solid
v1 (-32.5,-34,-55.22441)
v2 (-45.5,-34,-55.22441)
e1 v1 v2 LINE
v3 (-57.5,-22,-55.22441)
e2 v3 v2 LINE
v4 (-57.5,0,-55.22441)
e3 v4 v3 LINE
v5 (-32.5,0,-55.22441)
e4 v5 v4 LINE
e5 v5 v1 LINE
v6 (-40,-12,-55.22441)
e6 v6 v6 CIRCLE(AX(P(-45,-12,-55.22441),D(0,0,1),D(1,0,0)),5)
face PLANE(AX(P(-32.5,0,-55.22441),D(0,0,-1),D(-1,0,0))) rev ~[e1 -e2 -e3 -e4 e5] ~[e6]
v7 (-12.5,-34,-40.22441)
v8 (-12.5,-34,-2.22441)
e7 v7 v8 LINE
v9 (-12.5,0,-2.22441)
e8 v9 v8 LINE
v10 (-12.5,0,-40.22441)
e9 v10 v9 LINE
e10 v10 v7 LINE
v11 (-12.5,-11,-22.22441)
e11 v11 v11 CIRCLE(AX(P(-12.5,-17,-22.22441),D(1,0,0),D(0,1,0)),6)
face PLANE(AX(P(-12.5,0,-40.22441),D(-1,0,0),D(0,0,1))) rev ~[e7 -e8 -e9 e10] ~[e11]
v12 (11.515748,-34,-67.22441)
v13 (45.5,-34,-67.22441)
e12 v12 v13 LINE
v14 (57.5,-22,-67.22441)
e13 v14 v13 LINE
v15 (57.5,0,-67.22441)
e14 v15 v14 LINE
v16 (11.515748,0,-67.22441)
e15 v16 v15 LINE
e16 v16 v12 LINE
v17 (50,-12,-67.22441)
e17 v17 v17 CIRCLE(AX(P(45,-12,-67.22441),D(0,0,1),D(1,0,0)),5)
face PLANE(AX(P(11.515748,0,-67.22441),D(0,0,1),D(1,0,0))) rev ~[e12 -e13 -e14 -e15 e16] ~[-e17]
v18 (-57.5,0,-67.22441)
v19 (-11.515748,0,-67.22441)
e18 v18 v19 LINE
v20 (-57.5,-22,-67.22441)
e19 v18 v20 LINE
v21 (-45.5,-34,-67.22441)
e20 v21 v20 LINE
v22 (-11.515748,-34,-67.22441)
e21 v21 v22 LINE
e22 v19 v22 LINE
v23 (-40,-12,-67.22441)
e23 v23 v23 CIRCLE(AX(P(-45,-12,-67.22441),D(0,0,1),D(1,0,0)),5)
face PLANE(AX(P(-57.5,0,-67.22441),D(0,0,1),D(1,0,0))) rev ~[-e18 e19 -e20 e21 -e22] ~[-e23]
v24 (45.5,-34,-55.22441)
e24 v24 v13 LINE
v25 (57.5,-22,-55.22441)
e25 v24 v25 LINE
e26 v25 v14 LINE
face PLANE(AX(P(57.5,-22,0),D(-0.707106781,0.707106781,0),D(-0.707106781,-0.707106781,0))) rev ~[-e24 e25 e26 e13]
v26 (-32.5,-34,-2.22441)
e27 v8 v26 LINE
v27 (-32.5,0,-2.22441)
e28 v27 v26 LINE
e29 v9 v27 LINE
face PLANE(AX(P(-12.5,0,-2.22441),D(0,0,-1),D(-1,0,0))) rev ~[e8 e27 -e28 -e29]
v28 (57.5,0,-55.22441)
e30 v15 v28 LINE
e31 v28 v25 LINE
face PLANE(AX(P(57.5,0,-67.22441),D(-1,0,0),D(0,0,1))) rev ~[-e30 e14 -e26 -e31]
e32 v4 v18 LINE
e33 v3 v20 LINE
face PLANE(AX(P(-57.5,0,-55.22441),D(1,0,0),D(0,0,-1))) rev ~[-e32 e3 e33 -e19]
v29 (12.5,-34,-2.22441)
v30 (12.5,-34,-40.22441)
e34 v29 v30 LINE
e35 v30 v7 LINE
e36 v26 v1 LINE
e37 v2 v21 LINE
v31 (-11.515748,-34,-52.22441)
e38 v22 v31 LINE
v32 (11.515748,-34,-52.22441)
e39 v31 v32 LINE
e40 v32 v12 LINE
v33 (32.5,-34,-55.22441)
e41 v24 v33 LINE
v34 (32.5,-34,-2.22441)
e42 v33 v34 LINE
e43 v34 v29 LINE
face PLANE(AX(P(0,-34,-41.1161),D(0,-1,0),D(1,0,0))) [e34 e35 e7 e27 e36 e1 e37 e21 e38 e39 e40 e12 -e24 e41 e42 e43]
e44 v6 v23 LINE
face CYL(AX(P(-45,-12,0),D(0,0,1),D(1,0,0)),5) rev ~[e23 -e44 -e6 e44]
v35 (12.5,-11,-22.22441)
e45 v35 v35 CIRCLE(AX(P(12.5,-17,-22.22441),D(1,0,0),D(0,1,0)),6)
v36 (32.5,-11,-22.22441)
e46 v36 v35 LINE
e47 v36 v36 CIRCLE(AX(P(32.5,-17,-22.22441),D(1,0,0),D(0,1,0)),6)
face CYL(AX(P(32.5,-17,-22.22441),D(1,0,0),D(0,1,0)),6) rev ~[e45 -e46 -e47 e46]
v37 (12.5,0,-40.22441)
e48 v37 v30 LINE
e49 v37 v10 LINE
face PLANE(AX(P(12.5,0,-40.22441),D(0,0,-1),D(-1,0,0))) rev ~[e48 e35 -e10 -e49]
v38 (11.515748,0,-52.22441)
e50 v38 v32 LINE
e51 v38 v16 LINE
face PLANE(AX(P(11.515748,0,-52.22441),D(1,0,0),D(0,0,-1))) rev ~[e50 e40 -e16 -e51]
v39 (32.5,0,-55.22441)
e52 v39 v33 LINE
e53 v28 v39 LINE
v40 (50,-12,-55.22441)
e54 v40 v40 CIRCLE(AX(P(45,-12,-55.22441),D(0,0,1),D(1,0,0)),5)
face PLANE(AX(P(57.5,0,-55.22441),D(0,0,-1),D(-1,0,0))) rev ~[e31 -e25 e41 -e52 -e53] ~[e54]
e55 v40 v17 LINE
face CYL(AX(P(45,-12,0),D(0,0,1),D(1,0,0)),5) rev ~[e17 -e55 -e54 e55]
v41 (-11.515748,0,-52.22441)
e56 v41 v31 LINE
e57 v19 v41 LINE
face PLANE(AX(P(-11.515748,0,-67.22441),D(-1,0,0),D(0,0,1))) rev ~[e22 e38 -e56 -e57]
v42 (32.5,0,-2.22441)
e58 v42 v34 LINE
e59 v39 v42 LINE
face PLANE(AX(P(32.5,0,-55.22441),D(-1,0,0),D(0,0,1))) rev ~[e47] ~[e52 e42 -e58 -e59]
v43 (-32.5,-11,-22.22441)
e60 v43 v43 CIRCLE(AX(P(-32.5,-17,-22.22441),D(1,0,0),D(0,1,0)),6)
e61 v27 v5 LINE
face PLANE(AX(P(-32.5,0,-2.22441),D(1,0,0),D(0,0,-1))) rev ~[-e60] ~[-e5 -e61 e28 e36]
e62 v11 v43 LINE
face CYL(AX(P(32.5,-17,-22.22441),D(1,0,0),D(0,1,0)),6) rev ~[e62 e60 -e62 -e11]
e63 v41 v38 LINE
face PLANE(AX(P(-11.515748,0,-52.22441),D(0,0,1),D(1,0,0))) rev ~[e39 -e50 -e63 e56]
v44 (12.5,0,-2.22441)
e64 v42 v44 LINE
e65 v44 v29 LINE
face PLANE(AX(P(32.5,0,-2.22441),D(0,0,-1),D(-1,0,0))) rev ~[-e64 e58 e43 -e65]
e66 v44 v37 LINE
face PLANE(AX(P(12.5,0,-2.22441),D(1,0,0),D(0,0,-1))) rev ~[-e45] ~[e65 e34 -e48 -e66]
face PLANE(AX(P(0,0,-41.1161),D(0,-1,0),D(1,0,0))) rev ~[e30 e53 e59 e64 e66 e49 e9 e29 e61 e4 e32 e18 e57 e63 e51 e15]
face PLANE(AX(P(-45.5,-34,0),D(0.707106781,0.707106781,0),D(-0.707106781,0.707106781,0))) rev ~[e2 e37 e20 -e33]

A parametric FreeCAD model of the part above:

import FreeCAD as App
import Part
import Sketcher

V = App.Vector
Q = App.Units.Quantity


def add_polygon(sketch, points):
    """Adds a closed chain of lines whose ends are joined by coincident constraints."""
    first, n = sketch.GeometryCount, len(points)
    for a, b in zip(points, points[1:] + points[:1]):
        sketch.addGeometry(Part.LineSegment(App.Vector(*a, 0), App.Vector(*b, 0)), False)
    for i in range(n):
        sketch.addConstraint(Sketcher.Constraint("Coincident", first + i, 2, first + (i + 1) % n, 1))

doc = App.newDocument("Part")
params = doc.addObject("Spreadsheet::Sheet", "Params")
for row, (alias, value) in enumerate([
    ("sketch1_width", "20 mm"),
    ("sketch1_width2", "25 mm"),
    ("sketch1_height", "53 mm"),
    ("sketch1_height2", "12 mm"),
    ("sketch1_height3", "15 mm"),
    ("pad1_length", "34 mm"),
    ("sketch2_diameter", "12 mm"),
    ("sketch3_diameter", "10 mm"),
    ("sketch4_width", "12 mm"),
], start=1):
    params.set(f"A{row}", alias)
    params.set(f"B{row}", "=" + value)
    params.setAlias(f"B{row}", alias)

body = doc.addObject("PartDesign::Body", "Body")

sketch1 = body.newObject("Sketcher::SketchObject", "Sketch")
sketch1.AttachmentSupport = (doc.getObject("XZ_Plane"), [""])
sketch1.MapMode = "FlatFace"
add_polygon(sketch1, [(-12, -2), (-32, -2), (-32, -55), (-58, -55), (-58, -67), (-12, -67), (-12, -52), (12, -52), (12, -67), (58, -67), (58, -55), (32, -55), (32, -2), (12, -2), (12, -40), (-12, -40)])
sketch1.addConstraint(Sketcher.Constraint("Horizontal", 0))
sketch1.addConstraint(Sketcher.Constraint("Vertical", 1))
sketch1.addConstraint(Sketcher.Constraint("Horizontal", 2))
sketch1.addConstraint(Sketcher.Constraint("Vertical", 3))
sketch1.addConstraint(Sketcher.Constraint("Horizontal", 4))
sketch1.addConstraint(Sketcher.Constraint("Vertical", 5))
sketch1.addConstraint(Sketcher.Constraint("Horizontal", 6))
sketch1.addConstraint(Sketcher.Constraint("Vertical", 7))
sketch1.addConstraint(Sketcher.Constraint("Horizontal", 8))
sketch1.addConstraint(Sketcher.Constraint("Vertical", 9))
sketch1.addConstraint(Sketcher.Constraint("Horizontal", 10))
sketch1.addConstraint(Sketcher.Constraint("Vertical", 11))
sketch1.addConstraint(Sketcher.Constraint("Horizontal", 12))
sketch1.addConstraint(Sketcher.Constraint("Vertical", 13))
sketch1.addConstraint(Sketcher.Constraint("Horizontal", 14))
sketch1.addConstraint(Sketcher.Constraint("Vertical", 15))
sketch1.addConstraint(Sketcher.Constraint("Symmetric", 4, 2, 7, 2, -2))
sketch1.addConstraint(Sketcher.Constraint("Symmetric", 2, 2, 9, 2, -2))
sketch1.addConstraint(Sketcher.Constraint("Symmetric", 0, 2, 11, 2, -2))
sketch1.addConstraint(Sketcher.Constraint("Equal", 0, 12))
sketch1.addConstraint(Sketcher.Constraint("Equal", 10, 14))
sketch1.addConstraint(Sketcher.Constraint("DistanceX", 0, 2, 0, 1, Q("20 mm")))
sketch1.addConstraint(Sketcher.Constraint("DistanceX", 2, 2, 2, 1, Q("25 mm")))
sketch1.addConstraint(Sketcher.Constraint("DistanceY", 1, 2, 1, 1, Q("53 mm")))
sketch1.addConstraint(Sketcher.Constraint("DistanceY", 3, 2, 3, 1, Q("12 mm")))
sketch1.addConstraint(Sketcher.Constraint("DistanceY", 5, 1, 5, 2, Q("15 mm")))
sketch1.addConstraint(Sketcher.Constraint("DistanceY", 13, 2, 13, 1, Q("38 mm")))
sketch1.addConstraint(Sketcher.Constraint("DistanceX", 4, 1, 4, 2, Q("45.984252 mm")))
sketch1.addConstraint(Sketcher.Constraint("DistanceY", 0, 2, -1, 1, Q("2.22441 mm")))
sketch1.setExpression("Constraints[37]", "Params.sketch1_width")
sketch1.setExpression("Constraints[38]", "Params.sketch1_width2")
sketch1.setExpression("Constraints[39]", "Params.sketch1_height")
sketch1.setExpression("Constraints[40]", "Params.sketch1_height2")
sketch1.setExpression("Constraints[41]", "Params.sketch1_height3")
pad1 = body.newObject("PartDesign::Pad", "Pad")
pad1.Profile = sketch1
pad1.setExpression("Length", "Params.pad1_length")

sketch2 = body.newObject("Sketcher::SketchObject", "Sketch001")
sketch2.AttachmentSupport = (doc.getObject("YZ_Plane"), [""])
sketch2.MapMode = "FlatFace"
sketch2.AttachmentOffset = App.Placement(V(0, 0, 32.5), App.Rotation())
sketch2.addGeometry(Part.Circle(V(-17, -22, 0), V(0, 0, 1), 6), False)
sketch2.addConstraint(Sketcher.Constraint("Diameter", 0, Q("12 mm")))
sketch2.addConstraint(Sketcher.Constraint("DistanceX", 0, 3, -1, 1, Q("17 mm")))
sketch2.addConstraint(Sketcher.Constraint("DistanceY", 0, 3, -1, 1, Q("22.22441 mm")))
sketch2.setExpression("Constraints[0]", "Params.sketch2_diameter")
pocket1 = body.newObject("PartDesign::Pocket", "Pocket")
pocket1.Profile = sketch2
pocket1.Type = "ThroughAll"

sketch3 = body.newObject("Sketcher::SketchObject", "Sketch002")
sketch3.AttachmentSupport = (doc.getObject("XY_Plane"), [""])
sketch3.MapMode = "FlatFace"
sketch3.addGeometry(Part.Circle(V(-45, -12, 0), V(0, 0, 1), 5), False)
sketch3.addGeometry(Part.Circle(V(45, -12, 0), V(0, 0, 1), 5), False)
sketch3.addConstraint(Sketcher.Constraint("Equal", 0, 1))
sketch3.addConstraint(Sketcher.Constraint("Symmetric", 0, 3, 1, 3, -2))
sketch3.addConstraint(Sketcher.Constraint("Diameter", 0, Q("10 mm")))
sketch3.addConstraint(Sketcher.Constraint("DistanceX", 0, 3, -1, 1, Q("45 mm")))
sketch3.addConstraint(Sketcher.Constraint("DistanceY", 0, 3, -1, 1, Q("12 mm")))
sketch3.setExpression("Constraints[2]", "Params.sketch3_diameter")
pocket2 = body.newObject("PartDesign::Pocket", "Pocket001")
pocket2.Profile = sketch3
pocket2.Type = "ThroughAll"

sketch4 = body.newObject("Sketcher::SketchObject", "Sketch003")
sketch4.AttachmentSupport = (doc.getObject("XY_Plane"), [""])
sketch4.MapMode = "FlatFace"
add_polygon(sketch4, [(58, -34), (58, -22), (46, -34)])
add_polygon(sketch4, [(-46, -34), (-58, -22), (-58, -34)])
sketch4.addConstraint(Sketcher.Constraint("Vertical", 0))
sketch4.addConstraint(Sketcher.Constraint("Horizontal", 2))
sketch4.addConstraint(Sketcher.Constraint("Vertical", 4))
sketch4.addConstraint(Sketcher.Constraint("Horizontal", 5))
sketch4.addConstraint(Sketcher.Constraint("Symmetric", 0, 2, 3, 2, -2))
sketch4.addConstraint(Sketcher.Constraint("Symmetric", 1, 2, 5, 2, -2))
sketch4.addConstraint(Sketcher.Constraint("Perpendicular", 1, 3))
sketch4.addConstraint(Sketcher.Constraint("DistanceX", 2, 1, 2, 2, Q("12 mm")))
sketch4.addConstraint(Sketcher.Constraint("DistanceY", 0, 2, -1, 1, Q("22 mm")))
sketch4.addConstraint(Sketcher.Constraint("DistanceX", 3, 2, 1, 2, Q("103 mm")))
sketch4.setExpression("Constraints[13]", "Params.sketch4_width")
pocket3 = body.newObject("PartDesign::Pocket", "Pocket002")
pocket3.Profile = sketch4
pocket3.Type = "ThroughAll"

doc.recompute()
